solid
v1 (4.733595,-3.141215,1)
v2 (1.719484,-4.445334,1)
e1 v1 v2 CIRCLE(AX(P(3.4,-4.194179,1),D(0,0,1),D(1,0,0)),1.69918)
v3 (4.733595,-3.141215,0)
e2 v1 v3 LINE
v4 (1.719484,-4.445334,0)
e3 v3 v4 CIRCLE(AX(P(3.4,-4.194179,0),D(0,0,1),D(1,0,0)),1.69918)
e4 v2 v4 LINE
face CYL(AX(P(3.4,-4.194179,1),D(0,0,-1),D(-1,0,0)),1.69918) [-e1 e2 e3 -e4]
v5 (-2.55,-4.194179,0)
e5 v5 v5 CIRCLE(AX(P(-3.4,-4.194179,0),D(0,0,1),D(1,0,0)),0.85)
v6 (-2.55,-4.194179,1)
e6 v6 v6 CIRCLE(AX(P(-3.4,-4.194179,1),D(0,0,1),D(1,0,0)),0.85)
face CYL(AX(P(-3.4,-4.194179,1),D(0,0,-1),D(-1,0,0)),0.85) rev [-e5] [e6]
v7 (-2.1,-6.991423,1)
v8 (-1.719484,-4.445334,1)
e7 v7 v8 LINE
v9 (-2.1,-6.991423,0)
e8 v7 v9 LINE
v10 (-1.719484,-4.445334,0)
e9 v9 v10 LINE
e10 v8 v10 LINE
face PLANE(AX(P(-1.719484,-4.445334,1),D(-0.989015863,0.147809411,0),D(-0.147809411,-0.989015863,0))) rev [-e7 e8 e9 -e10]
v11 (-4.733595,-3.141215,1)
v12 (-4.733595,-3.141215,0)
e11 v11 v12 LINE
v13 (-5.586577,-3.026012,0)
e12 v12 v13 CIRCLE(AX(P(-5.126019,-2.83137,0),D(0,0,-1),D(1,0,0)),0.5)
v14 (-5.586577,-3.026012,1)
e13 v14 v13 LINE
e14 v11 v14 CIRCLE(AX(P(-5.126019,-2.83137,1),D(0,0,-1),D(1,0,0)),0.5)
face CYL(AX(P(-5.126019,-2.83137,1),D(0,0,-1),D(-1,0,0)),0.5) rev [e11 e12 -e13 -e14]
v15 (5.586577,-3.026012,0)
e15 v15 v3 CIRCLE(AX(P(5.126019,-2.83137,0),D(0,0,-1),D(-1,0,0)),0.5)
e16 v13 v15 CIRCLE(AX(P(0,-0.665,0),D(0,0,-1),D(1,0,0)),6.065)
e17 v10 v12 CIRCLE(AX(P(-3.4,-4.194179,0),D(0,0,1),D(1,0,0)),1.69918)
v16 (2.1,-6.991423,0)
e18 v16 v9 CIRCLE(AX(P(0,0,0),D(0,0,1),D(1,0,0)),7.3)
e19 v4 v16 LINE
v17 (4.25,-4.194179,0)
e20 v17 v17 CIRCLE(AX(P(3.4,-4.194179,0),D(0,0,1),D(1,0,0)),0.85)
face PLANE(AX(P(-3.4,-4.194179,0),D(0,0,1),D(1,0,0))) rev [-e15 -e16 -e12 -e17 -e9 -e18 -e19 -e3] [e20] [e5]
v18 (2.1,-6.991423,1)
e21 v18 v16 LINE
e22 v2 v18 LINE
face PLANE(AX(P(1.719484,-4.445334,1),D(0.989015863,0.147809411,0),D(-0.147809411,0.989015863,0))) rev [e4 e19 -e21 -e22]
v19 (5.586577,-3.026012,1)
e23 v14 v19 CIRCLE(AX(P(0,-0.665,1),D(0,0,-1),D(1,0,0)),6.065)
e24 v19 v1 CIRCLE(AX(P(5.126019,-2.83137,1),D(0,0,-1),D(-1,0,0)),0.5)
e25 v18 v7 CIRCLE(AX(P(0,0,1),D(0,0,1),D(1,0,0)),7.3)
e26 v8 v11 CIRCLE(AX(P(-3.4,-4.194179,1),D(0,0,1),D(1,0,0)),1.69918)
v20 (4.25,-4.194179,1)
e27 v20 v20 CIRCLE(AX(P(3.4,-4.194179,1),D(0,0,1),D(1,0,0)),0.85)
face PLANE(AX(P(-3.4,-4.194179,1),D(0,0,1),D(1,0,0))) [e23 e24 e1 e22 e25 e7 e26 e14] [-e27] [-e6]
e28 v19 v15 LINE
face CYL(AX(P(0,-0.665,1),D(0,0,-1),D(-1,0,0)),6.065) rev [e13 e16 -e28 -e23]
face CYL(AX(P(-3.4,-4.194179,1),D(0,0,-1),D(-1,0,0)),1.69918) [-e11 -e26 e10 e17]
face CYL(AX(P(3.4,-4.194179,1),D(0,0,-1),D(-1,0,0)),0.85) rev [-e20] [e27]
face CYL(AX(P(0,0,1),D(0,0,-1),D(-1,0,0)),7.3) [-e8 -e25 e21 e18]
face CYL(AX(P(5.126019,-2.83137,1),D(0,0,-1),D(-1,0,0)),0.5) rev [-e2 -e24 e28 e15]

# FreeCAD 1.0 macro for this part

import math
import FreeCAD as App
import Part
import Sketcher
Q = App.Units.Quantity

doc = App.newDocument("Part")
body = doc.addObject("PartDesign::Body", "Body")

# Sketch on XY plane
sketch1 = doc.addObject("Sketcher::SketchObject", "Sketch")
body.addObject(sketch1)
sketch1.AttachmentSupport = (doc.XY_Plane, [""])
sketch1.MapMode = "FlatFace"
sketch1.addGeometry([
    Part.LineSegment(App.Vector(-2.1, -7, 0), App.Vector(-1.7, -4.4, 0)),  # 0
    Part.ArcOfCircle(Part.Circle(App.Vector(-3.4, -4.2, 0), App.Vector(0, 0, 1), 1.7), math.radians(-9), math.radians(142)),  # 1
    Part.ArcOfCircle(Part.Circle(App.Vector(-5.1, -2.8, 0), App.Vector(0, 0, 1), 0.5), math.radians(-157), math.radians(-38)),  # 2
    Part.ArcOfCircle(Part.Circle(App.Vector(0, -0.7, 0), App.Vector(0, 0, 1), 6.1), math.radians(-23), math.radians(203)),  # 3
    Part.ArcOfCircle(Part.Circle(App.Vector(5.1, -2.8, 0), App.Vector(0, 0, 1), 0.5), math.radians(-142), math.radians(-23)),  # 4
    Part.ArcOfCircle(Part.Circle(App.Vector(3.4, -4.2, 0), App.Vector(0, 0, 1), 1.7), math.radians(38), math.radians(189)),  # 5
    Part.LineSegment(App.Vector(1.7, -4.4, 0), App.Vector(2.1, -7, 0)),  # 6
    Part.ArcOfCircle(Part.Circle(App.Vector(0, 0, 0), App.Vector(0, 0, 1), 7.3), math.radians(-73), math.radians(253)),  # 7
    Part.Circle(App.Vector(3.4, -4.2, 0), App.Vector(0, 0, 1), 0.8),  # 8
    Part.Circle(App.Vector(-3.4, -4.2, 0), App.Vector(0, 0, 1), 0.8),  # 9
], False)
sketch1.addConstraint([
    Sketcher.Constraint("Tangent", 0, 2, 1, 1),
    Sketcher.Constraint("Tangent", 1, 2, 2, 2),
    Sketcher.Constraint("Tangent", 2, 1, 3, 2),
    Sketcher.Constraint("Tangent", 3, 1, 4, 2),
    Sketcher.Constraint("Tangent", 4, 1, 5, 1),
    Sketcher.Constraint("Tangent", 5, 2, 6, 1),
    Sketcher.Constraint("Coincident", 6, 2, 7, 1),
    Sketcher.Constraint("Coincident", 7, 2, 0, 1),
    Sketcher.Constraint("Coincident", 7, 3, -1, 1),
    Sketcher.Constraint("Coincident", 8, 3, 5, 3),
    Sketcher.Constraint("Coincident", 9, 3, 1, 3),
    Sketcher.Constraint("Equal", 2, 4),
    Sketcher.Constraint("Equal", 1, 5),
    Sketcher.Constraint("Equal", 8, 9),
    Sketcher.Constraint("Symmetric", 2, 3, 4, 3, -2),
    Sketcher.Constraint("Symmetric", 0, 2, 5, 2, -2),
    Sketcher.Constraint("Diameter", 8, 1.7),
    Sketcher.Constraint("Radius", 2, 0.5),
    Sketcher.Constraint("Radius", 7, 7.3),
    Sketcher.Constraint("Angle", 0, Q("81.5 deg")),
    Sketcher.Constraint("Radius", 3, 6.065),
    Sketcher.Constraint("DistanceX", 1, 3, -1, 1, 3.4),
    Sketcher.Constraint("DistanceX", -1, 1, 6, 2, 2.1),
    Sketcher.Constraint("Radius", 1, 1.69918),
    Sketcher.Constraint("DistanceY", 3, 3, -1, 1, 0.665),
])
pad1 = doc.addObject("PartDesign::Pad", "Pad")
body.addObject(pad1)
pad1.Profile = sketch1
pad1.Length = 1

doc.recompute()
